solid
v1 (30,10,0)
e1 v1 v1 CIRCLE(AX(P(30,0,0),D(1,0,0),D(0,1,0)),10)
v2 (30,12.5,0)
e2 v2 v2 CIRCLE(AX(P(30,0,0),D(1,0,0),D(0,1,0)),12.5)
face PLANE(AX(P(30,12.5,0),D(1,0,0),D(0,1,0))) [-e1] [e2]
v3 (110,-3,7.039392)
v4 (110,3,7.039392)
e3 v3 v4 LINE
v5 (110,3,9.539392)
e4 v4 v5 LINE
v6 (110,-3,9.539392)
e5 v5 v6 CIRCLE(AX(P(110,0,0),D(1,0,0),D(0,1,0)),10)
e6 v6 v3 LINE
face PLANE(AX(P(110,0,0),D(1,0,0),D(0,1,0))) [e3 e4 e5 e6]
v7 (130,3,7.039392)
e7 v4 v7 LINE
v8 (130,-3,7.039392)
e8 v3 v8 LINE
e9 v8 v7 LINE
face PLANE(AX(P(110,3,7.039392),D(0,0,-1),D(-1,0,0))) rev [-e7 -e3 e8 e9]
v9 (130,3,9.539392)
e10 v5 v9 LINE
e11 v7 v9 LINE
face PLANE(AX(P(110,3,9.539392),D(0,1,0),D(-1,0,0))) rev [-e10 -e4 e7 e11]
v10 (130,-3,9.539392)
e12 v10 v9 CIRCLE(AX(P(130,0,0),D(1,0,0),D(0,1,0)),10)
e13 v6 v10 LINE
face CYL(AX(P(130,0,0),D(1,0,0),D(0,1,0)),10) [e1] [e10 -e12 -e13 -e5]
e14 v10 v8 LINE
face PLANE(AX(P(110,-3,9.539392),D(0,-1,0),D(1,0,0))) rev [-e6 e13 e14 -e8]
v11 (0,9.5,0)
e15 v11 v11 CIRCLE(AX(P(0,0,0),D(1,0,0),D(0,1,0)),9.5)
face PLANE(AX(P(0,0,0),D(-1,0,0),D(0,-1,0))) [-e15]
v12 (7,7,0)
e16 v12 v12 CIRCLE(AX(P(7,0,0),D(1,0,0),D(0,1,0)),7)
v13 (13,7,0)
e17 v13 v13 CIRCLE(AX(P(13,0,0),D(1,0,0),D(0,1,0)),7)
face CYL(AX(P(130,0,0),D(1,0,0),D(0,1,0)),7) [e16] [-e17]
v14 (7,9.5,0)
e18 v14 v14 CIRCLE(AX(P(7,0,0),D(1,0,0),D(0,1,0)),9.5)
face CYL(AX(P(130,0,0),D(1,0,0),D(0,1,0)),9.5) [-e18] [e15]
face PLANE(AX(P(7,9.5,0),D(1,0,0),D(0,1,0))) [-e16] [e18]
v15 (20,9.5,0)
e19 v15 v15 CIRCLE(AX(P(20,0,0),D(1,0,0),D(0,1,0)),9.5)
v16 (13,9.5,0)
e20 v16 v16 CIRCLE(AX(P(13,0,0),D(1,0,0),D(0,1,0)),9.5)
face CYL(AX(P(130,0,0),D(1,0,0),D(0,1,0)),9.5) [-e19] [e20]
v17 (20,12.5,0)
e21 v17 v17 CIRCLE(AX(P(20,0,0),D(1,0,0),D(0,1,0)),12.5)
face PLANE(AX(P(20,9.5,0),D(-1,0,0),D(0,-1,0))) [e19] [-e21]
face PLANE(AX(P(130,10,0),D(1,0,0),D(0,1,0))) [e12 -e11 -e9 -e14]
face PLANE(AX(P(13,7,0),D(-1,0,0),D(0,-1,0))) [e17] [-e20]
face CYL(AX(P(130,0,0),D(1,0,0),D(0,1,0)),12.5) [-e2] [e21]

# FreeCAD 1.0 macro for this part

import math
import FreeCAD as App
import Part
import Sketcher
Q = App.Units.Quantity


def add_polygon(sketch, points):
    """Adds a closed chain of lines whose ends are joined by coincident constraints."""
    first, n = sketch.GeometryCount, len(points)
    for a, b in zip(points, points[1:] + points[:1]):
        sketch.addGeometry(Part.LineSegment(App.Vector(*a, 0), App.Vector(*b, 0)), False)
    for i in range(n):
        sketch.addConstraint(Sketcher.Constraint("Coincident", first + i, 2, first + (i + 1) % n, 1))

doc = App.newDocument("Part")
params = doc.addObject("Spreadsheet::Sheet", "Params")
for row, (alias, value) in enumerate([
    ("sketch1_width", "130 mm"),
    ("sketch1_width2", "100 mm"),
    ("sketch1_width3", "10 mm"),
    ("sketch1_width4", "7 mm"),
    ("sketch1_height", "3 mm"),
    ("revolution_angle", "360 deg"),
    ("sketch2_radius", "10 mm"),
    ("sketch2_width", "6 mm"),
    ("sketch2_height", "2.5 mm"),
    ("pocket1_length", "20 mm"),
], start=1):
    params.set(f"A{row}", alias)
    params.set(f"B{row}", "=" + value)
    params.setAlias(f"B{row}", alias)

body = doc.addObject("PartDesign::Body", "Body")

# Sketch on XY plane
sketch1 = body.newObject("Sketcher::SketchObject", "Sketch")
sketch1.AttachmentSupport = (doc.getObject("XY_Plane"), [""])
sketch1.MapMode = "FlatFace"
add_polygon(sketch1, [(0, 9.5), (0, 0), (130, 0), (130, 10), (30, 10), (30, 12.5), (20, 12.5), (20, 9.5), (13, 9.5), (13, 7), (7, 7), (7, 9.5)])  # lines 0-11
sketch1.addConstraint([
    Sketcher.Constraint("Vertical", 0),
    Sketcher.Constraint("Horizontal", 1),
    Sketcher.Constraint("Vertical", 2),
    Sketcher.Constraint("Horizontal", 3),
    Sketcher.Constraint("Vertical", 4),
    Sketcher.Constraint("Horizontal", 5),
    Sketcher.Constraint("Vertical", 6),
    Sketcher.Constraint("Horizontal", 7),
    Sketcher.Constraint("Vertical", 8),
    Sketcher.Constraint("Horizontal", 9),
    Sketcher.Constraint("Vertical", 10),
    Sketcher.Constraint("Horizontal", 11),
    Sketcher.Constraint("Coincident", 0, 2, -1, 1),
    Sketcher.Constraint("Horizontal", 7, 2, 10, 2),
    Sketcher.Constraint("Equal", 7, 11),
    Sketcher.Constraint("Equal", 5, 2),
    Sketcher.Constraint("Equal", 4, 8),
    Sketcher.Constraint("DistanceX", 1, 1, 1, 2, Q("130 mm")),
    Sketcher.Constraint("DistanceX", 3, 2, 3, 1, Q("100 mm")),
    Sketcher.Constraint("DistanceX", 5, 2, 5, 1, Q("10 mm")),
    Sketcher.Constraint("DistanceX", 7, 2, 7, 1, Q("7 mm")),
    Sketcher.Constraint("DistanceY", 6, 2, 6, 1, Q("3 mm")),
    Sketcher.Constraint("DistanceY", 0, 2, 0, 1, Q("9.5 mm")),
])
sketch1.setExpression("Constraints[29]", "Params.sketch1_width")
sketch1.setExpression("Constraints[30]", "Params.sketch1_width2")
sketch1.setExpression("Constraints[31]", "Params.sketch1_width3")
sketch1.setExpression("Constraints[32]", "Params.sketch1_width4")
sketch1.setExpression("Constraints[33]", "Params.sketch1_height")
revolution = body.newObject("PartDesign::Revolution", "Revolution")
revolution.Profile = sketch1
revolution.ReferenceAxis = (sketch1, ["H_Axis"])
revolution.setExpression("Angle", "Params.revolution_angle")

# Sketch on YZ plane
sketch2 = body.newObject("Sketcher::SketchObject", "Sketch001")
sketch2.AttachmentSupport = (doc.getObject("YZ_Plane"), [""])
sketch2.MapMode = "FlatFace"
sketch2.AttachmentOffset = App.Placement(App.Vector(0, 0, 130), App.Rotation())
sketch2.addGeometry([
    Part.LineSegment(App.Vector(3, 7, 0), App.Vector(3, 9.5, 0)),
    Part.ArcOfCircle(Part.Circle(App.Vector(0, 0, 0), App.Vector(0, 0, 1), 10), math.radians(73), math.radians(107)),
    Part.LineSegment(App.Vector(-3, 9.5, 0), App.Vector(-3, 7, 0)),
    Part.LineSegment(App.Vector(-3, 7, 0), App.Vector(3, 7, 0)),
], False)
sketch2.addConstraint([
    Sketcher.Constraint("Coincident", 0, 2, 1, 1),
    Sketcher.Constraint("Coincident", 1, 2, 2, 1),
    Sketcher.Constraint("Coincident", 2, 2, 3, 1),
    Sketcher.Constraint("Coincident", 3, 2, 0, 1),
    Sketcher.Constraint("Vertical", 0),
    Sketcher.Constraint("Vertical", 2),
    Sketcher.Constraint("Horizontal", 3),
    Sketcher.Constraint("Coincident", 1, 3, -1, 1),
    Sketcher.Constraint("Horizontal", 0, 2, 1, 2),
    Sketcher.Constraint("Radius", 1, Q("10 mm")),
    Sketcher.Constraint("DistanceX", 3, 1, 3, 2, Q("6 mm")),
    Sketcher.Constraint("DistanceY", 0, 1, 0, 2, Q("2.5 mm")),
])
sketch2.setExpression("Constraints[9]", "Params.sketch2_radius")
sketch2.setExpression("Constraints[10]", "Params.sketch2_width")
sketch2.setExpression("Constraints[11]", "Params.sketch2_height")
pocket1 = body.newObject("PartDesign::Pocket", "Pocket")
pocket1.Profile = sketch2
pocket1.setExpression("Length", "Params.pocket1_length")

doc.recompute()
